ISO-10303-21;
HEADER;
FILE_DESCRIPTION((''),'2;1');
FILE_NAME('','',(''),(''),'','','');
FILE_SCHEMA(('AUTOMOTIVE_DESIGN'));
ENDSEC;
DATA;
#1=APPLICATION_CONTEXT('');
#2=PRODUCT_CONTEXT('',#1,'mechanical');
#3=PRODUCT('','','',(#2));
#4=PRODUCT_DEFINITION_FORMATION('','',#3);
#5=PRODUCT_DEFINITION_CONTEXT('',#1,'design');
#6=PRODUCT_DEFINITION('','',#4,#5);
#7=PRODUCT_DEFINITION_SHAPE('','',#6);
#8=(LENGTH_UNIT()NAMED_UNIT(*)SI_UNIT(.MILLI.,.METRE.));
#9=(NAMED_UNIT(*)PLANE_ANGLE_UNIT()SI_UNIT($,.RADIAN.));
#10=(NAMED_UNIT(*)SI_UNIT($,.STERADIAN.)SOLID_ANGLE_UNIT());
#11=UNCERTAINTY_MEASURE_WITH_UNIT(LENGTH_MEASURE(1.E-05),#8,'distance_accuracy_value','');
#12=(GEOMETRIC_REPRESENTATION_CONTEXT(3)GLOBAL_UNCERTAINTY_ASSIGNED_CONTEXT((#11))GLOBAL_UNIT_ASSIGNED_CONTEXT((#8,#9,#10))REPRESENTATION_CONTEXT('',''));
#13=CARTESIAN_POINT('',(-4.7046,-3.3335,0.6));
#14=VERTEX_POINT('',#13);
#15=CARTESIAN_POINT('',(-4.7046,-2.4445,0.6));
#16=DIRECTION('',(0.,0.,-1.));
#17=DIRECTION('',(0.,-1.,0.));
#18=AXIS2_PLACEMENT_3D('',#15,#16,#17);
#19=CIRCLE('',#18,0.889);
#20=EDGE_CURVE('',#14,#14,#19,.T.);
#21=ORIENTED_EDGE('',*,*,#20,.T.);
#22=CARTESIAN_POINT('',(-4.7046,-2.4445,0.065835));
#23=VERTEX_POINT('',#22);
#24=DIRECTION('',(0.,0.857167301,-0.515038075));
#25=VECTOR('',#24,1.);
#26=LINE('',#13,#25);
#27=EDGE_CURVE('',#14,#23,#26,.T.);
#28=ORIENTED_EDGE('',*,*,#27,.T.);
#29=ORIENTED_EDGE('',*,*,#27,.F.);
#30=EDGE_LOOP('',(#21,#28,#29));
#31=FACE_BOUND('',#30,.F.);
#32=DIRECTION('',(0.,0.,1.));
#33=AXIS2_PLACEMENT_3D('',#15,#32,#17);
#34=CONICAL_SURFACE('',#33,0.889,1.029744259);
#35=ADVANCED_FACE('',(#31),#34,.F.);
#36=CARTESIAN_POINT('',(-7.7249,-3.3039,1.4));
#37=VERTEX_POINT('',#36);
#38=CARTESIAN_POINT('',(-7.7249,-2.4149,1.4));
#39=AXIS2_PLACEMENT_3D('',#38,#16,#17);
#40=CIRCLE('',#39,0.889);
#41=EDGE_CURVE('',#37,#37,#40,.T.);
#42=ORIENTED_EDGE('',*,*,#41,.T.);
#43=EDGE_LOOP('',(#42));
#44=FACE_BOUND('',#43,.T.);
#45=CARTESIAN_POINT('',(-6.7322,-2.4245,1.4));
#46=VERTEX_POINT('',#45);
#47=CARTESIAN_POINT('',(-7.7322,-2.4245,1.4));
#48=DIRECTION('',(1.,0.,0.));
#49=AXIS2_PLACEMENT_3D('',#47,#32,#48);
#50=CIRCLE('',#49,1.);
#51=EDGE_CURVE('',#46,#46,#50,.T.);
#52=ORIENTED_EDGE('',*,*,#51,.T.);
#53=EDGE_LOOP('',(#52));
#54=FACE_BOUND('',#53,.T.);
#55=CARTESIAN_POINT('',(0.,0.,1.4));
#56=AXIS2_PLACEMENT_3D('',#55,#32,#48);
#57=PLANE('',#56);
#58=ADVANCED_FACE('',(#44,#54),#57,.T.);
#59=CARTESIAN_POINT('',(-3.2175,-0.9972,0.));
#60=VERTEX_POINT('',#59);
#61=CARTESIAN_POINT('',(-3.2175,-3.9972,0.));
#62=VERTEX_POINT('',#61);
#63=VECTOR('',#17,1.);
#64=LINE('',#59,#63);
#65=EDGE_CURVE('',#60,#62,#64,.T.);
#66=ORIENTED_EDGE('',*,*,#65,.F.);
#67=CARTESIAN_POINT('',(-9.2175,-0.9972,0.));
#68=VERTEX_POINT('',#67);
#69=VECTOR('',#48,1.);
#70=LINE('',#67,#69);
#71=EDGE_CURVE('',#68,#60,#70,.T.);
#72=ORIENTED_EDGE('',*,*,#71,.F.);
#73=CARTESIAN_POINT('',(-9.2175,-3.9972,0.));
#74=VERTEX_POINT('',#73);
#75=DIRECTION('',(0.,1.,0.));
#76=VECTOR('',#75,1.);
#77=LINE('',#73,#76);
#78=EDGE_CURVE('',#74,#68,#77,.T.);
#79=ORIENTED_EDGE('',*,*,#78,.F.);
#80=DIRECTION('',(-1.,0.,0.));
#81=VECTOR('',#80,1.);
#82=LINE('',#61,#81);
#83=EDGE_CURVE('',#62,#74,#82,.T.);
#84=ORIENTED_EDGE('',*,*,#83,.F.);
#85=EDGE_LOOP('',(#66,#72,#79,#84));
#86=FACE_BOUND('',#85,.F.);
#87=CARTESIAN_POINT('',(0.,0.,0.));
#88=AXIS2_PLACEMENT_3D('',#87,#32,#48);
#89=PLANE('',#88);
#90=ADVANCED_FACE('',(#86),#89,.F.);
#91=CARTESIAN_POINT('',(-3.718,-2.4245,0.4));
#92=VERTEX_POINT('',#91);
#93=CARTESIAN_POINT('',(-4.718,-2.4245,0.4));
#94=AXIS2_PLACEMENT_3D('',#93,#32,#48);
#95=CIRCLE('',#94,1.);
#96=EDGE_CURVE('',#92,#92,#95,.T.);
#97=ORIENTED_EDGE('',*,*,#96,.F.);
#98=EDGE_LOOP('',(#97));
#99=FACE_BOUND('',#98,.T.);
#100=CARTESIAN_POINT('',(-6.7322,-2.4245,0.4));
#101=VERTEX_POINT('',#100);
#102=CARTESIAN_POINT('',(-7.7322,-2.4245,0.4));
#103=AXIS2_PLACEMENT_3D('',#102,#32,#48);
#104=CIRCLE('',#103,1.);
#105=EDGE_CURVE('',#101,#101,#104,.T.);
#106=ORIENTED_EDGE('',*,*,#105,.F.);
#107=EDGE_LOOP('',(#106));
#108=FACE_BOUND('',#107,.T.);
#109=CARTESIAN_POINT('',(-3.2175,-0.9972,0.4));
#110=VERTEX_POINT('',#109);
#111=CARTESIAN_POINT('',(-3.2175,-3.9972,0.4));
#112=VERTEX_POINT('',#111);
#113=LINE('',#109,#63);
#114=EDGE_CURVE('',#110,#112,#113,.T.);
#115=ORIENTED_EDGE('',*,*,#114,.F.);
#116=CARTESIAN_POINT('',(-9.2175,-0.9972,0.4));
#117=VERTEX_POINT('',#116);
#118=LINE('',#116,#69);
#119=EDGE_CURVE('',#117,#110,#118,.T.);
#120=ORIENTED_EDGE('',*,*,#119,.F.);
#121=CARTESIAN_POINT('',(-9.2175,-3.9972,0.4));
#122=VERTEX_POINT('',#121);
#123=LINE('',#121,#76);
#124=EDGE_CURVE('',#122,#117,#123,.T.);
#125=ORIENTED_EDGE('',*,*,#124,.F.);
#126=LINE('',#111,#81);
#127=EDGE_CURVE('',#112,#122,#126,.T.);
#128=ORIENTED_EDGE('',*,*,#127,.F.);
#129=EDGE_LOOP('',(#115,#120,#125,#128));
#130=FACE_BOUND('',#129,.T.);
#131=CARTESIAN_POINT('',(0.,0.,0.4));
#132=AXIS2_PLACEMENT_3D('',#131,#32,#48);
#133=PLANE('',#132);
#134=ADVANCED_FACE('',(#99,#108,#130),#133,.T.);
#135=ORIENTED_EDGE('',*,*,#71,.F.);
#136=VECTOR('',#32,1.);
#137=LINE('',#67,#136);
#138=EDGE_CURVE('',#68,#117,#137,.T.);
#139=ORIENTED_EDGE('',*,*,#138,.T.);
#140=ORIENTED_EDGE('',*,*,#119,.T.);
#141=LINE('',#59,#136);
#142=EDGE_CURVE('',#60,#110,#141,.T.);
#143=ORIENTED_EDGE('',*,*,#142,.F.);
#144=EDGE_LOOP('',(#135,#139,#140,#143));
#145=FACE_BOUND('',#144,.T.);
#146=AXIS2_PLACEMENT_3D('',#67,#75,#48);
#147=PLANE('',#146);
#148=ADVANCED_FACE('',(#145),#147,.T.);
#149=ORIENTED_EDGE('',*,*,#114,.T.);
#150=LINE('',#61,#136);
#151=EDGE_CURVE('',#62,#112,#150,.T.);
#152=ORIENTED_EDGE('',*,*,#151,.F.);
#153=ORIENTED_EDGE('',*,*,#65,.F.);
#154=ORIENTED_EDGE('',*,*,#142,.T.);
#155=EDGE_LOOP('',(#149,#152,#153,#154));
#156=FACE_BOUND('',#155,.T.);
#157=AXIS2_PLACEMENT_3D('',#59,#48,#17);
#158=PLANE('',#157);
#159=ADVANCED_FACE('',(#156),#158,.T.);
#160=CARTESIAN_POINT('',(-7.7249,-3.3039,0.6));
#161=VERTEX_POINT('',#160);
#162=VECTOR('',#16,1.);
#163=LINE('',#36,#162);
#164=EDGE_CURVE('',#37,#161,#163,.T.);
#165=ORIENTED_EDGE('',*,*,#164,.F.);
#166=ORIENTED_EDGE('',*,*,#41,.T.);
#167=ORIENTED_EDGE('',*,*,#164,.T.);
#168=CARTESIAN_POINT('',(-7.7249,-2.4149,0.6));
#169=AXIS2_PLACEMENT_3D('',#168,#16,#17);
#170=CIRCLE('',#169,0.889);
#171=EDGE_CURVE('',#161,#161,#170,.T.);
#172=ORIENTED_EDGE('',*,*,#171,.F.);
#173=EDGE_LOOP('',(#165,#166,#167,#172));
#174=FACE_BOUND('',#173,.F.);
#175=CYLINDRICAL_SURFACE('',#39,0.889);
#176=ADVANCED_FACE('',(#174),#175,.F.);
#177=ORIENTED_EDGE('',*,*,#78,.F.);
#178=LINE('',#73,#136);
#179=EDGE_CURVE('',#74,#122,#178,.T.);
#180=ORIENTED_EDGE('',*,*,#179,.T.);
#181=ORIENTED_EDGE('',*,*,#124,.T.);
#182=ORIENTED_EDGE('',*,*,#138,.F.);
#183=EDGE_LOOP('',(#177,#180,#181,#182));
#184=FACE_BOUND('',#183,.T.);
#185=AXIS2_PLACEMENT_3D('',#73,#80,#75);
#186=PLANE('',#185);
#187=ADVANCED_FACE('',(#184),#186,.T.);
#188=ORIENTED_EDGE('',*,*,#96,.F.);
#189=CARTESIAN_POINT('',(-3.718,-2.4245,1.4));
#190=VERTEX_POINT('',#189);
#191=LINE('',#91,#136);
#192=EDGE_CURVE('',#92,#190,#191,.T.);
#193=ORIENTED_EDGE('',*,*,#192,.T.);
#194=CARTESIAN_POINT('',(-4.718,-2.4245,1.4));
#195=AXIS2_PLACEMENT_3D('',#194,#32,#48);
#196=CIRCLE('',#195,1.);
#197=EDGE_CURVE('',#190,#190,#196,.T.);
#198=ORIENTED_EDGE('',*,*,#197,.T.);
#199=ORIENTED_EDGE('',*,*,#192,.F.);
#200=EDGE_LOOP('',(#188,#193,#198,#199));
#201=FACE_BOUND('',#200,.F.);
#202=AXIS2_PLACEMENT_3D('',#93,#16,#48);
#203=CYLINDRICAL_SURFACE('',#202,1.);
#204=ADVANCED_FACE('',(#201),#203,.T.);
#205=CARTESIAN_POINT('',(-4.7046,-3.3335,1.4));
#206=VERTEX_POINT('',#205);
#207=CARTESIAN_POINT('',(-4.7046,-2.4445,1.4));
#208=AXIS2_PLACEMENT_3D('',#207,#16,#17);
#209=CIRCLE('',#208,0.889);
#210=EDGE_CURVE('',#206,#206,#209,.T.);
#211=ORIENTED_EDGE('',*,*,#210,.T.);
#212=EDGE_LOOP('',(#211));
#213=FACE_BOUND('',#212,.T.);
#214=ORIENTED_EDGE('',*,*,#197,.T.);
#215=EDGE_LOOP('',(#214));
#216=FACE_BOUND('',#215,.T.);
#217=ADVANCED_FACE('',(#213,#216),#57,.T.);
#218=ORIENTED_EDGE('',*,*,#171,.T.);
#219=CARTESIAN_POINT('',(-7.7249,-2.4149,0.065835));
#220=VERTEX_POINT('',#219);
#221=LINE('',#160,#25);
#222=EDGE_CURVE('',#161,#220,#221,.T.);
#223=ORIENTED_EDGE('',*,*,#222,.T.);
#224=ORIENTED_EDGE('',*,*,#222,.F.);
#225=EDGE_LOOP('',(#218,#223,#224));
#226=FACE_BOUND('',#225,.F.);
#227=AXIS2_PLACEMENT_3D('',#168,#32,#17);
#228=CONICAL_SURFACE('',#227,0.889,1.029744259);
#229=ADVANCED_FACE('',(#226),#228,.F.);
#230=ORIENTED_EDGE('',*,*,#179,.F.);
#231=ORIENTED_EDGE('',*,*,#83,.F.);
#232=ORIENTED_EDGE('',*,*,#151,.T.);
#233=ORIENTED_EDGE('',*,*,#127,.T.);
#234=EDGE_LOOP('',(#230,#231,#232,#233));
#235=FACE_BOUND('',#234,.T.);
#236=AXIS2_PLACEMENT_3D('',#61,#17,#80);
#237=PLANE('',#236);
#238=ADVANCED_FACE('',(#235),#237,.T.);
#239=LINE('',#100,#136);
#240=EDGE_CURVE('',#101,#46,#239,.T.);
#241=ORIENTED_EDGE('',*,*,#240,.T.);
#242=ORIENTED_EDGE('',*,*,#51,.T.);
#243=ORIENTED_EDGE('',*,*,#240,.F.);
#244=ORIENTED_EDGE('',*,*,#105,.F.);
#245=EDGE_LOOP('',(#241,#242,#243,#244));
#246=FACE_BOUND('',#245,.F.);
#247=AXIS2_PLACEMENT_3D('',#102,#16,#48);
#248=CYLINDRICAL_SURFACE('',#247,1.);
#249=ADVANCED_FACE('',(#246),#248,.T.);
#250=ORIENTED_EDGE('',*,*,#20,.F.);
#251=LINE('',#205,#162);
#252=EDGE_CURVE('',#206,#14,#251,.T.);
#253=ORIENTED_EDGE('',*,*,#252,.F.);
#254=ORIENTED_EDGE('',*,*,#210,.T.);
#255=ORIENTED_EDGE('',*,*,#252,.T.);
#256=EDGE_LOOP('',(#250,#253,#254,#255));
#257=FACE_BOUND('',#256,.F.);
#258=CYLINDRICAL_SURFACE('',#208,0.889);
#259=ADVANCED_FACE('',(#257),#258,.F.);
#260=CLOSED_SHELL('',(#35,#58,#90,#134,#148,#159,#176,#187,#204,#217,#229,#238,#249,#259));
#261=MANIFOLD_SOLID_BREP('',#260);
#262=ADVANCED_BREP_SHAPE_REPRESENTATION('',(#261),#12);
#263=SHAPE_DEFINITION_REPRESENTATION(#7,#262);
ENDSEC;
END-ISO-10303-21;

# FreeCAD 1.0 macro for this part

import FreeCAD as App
import Part
import Sketcher

V = App.Vector


def add_polygon(sketch, points):
    """Adds a closed chain of lines whose ends are joined by coincident constraints."""
    first, n = sketch.GeometryCount, len(points)
    for a, b in zip(points, points[1:] + points[:1]):
        sketch.addGeometry(Part.LineSegment(App.Vector(*a, 0), App.Vector(*b, 0)), False)
    for i in range(n):
        sketch.addConstraint(Sketcher.Constraint("Coincident", first + i, 2, first + (i + 1) % n, 1))

doc = App.newDocument("Part")
body = doc.addObject("PartDesign::Body", "Body")

sketch1 = body.newObject("Sketcher::SketchObject", "Sketch")
sketch1.AttachmentSupport = (doc.getObject("XY_Plane"), [""])
sketch1.MapMode = "FlatFace"
add_polygon(sketch1, [(-3.2, -1), (-9.2, -1), (-9.2, -4), (-3.2, -4)])
sketch1.addConstraint([
    Sketcher.Constraint("Horizontal", 0),
    Sketcher.Constraint("Vertical", 1),
    Sketcher.Constraint("Horizontal", 2),
    Sketcher.Constraint("Vertical", 3),
    Sketcher.Constraint("DistanceX", 0, 2, 0, 1, 6.0),
    Sketcher.Constraint("DistanceY", 1, 2, 1, 1, 3.0),
    Sketcher.Constraint("DistanceX", 0, 2, -1, 1, 9.2175),
    Sketcher.Constraint("DistanceY", 0, 2, -1, 1, 0.9972),
])
pad1 = body.newObject("PartDesign::Pad", "Pad")
pad1.Profile = sketch1
pad1.Length = 0.4

sketch2 = body.newObject("Sketcher::SketchObject", "Sketch001")
sketch2.AttachmentSupport = (doc.getObject("XY_Plane"), [""])
sketch2.MapMode = "FlatFace"
sketch2.AttachmentOffset = App.Placement(V(0, 0, 0.4), App.Rotation())
sketch2.addGeometry([
    Part.Circle(V(-7.7, -2.4, 0), V(0, 0, 1), 1),
    Part.Circle(V(-4.7, -2.4, 0), V(0, 0, 1), 1),
], False)
sketch2.addConstraint([
    Sketcher.Constraint("Equal", 0, 1),
    Sketcher.Constraint("Horizontal", 0, 3, 1, 3),
    Sketcher.Constraint("Diameter", 0, 2.0),
    Sketcher.Constraint("DistanceX", 1, 3, -1, 1, 4.718),
    Sketcher.Constraint("DistanceX", 0, 3, -1, 1, 7.7322),
    Sketcher.Constraint("DistanceY", 0, 3, -1, 1, 2.4245),
])
pad2 = body.newObject("PartDesign::Pad", "Pad001")
pad2.Profile = sketch2
pad2.Length = 1

sketch3 = body.newObject("Sketcher::SketchObject", "Sketch002")
sketch3.AttachmentSupport = (doc.getObject("XY_Plane"), [""])
sketch3.MapMode = "FlatFace"
sketch3.AttachmentOffset = App.Placement(V(0, 0, 1.4), App.Rotation())
sketch3.addGeometry([
    Part.Circle(V(-7.7, -2.4, 0), V(0, 0, 1), 0.9),
    Part.Circle(V(-4.7, -2.4, 0), V(0, 0, 1), 0.9),
], False)
sketch3.addConstraint([
    Sketcher.Constraint("Equal", 0, 1),
    Sketcher.Constraint("Diameter", 0, 1.778),
    Sketcher.Constraint("DistanceX", 0, 3, -1, 1, 7.725),
    Sketcher.Constraint("DistanceY", 0, 3, -1, 1, 2.415),
    Sketcher.Constraint("DistanceX", 1, 3, -1, 1, 4.7046),
    Sketcher.Constraint("DistanceY", 1, 3, -1, 1, 2.4445),
])
doc.recompute()
hole = body.newObject("PartDesign::Hole", "Hole")
hole.Profile = sketch3
hole.ThreadType = "None"
hole.Diameter = 1.778
hole.DepthType = "Dimension"
hole.Depth = 0.8
hole.DrillPoint = "Angled"
hole.DrillPointAngle = 118

doc.recompute()
